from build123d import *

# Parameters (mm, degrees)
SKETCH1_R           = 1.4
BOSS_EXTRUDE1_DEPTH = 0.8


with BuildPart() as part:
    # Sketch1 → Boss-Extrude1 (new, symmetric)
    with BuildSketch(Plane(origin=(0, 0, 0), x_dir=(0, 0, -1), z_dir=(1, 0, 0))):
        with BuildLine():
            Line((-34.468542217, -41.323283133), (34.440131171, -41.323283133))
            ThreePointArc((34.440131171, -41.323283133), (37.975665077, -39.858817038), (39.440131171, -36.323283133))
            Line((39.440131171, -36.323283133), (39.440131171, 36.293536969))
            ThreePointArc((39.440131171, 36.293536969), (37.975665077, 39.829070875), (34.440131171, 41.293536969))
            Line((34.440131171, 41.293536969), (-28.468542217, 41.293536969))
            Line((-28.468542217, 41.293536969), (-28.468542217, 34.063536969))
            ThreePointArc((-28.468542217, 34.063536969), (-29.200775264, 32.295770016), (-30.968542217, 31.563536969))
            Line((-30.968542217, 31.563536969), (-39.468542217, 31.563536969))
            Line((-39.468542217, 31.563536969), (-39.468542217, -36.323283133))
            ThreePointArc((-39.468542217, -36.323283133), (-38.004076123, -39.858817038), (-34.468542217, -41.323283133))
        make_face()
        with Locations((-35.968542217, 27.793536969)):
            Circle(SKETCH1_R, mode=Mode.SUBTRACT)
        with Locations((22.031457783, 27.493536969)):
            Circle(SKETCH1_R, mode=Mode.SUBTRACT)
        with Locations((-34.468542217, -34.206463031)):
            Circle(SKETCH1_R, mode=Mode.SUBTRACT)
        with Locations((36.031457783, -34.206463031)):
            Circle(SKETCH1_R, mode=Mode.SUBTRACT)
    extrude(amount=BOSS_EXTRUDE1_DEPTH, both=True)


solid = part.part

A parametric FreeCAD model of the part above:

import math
import FreeCAD as App
import Part
import Sketcher

doc = App.newDocument("Part")
body = doc.addObject("PartDesign::Body", "Body")

# Sketch on YZ plane
sketch1 = body.newObject("Sketcher::SketchObject", "Sketch")
sketch1.AttachmentSupport = (doc.getObject("YZ_Plane"), [""])
sketch1.MapMode = "FlatFace"
sketch1.addGeometry([
    Part.LineSegment(App.Vector(-41.323283, 34.468542, 0), App.Vector(-41.323283, -34.440131, 0)),  # 0
    Part.ArcOfCircle(Part.Circle(App.Vector(-36.323283, -34.440131, 0), App.Vector(0, 0, 1), 5), math.radians(-180), math.radians(-90)),  # 1
    Part.LineSegment(App.Vector(-36.323283, -39.440131, 0), App.Vector(36.293537, -39.440131, 0)),  # 2
    Part.ArcOfCircle(Part.Circle(App.Vector(36.293537, -34.440131, 0), App.Vector(0, 0, 1), 5), math.radians(-90), math.radians(0)),  # 3
    Part.LineSegment(App.Vector(41.293537, -34.440131, 0), App.Vector(41.293537, 28.468542, 0)),  # 4
    Part.LineSegment(App.Vector(41.293537, 28.468542, 0), App.Vector(34.063537, 28.468542, 0)),  # 5
    Part.ArcOfCircle(Part.Circle(App.Vector(34.063537, 30.968542, 0), App.Vector(0, 0, 1), 2.5), math.radians(180), math.radians(270)),  # 6
    Part.LineSegment(App.Vector(31.563537, 30.968542, 0), App.Vector(31.563537, 39.468542, 0)),  # 7
    Part.LineSegment(App.Vector(31.563537, 39.468542, 0), App.Vector(-36.323283, 39.468542, 0)),  # 8
    Part.ArcOfCircle(Part.Circle(App.Vector(-36.323283, 34.468542, 0), App.Vector(0, 0, 1), 5), math.radians(90), math.radians(180)),  # 9
    Part.Circle(App.Vector(-34.206463, 34.468542, 0), App.Vector(0, 0, 1), 1.4),  # 10
    Part.Circle(App.Vector(-34.206463, -36.031458, 0), App.Vector(0, 0, 1), 1.4),  # 11
    Part.Circle(App.Vector(27.793537, 35.968542, 0), App.Vector(0, 0, 1), 1.4),  # 12
    Part.Circle(App.Vector(27.493537, -22.031458, 0), App.Vector(0, 0, 1), 1.4),  # 13
], False)
sketch1.addConstraint([
    Sketcher.Constraint("Tangent", 0, 2, 1, 1),
    Sketcher.Constraint("Tangent", 1, 2, 2, 1),
    Sketcher.Constraint("Tangent", 2, 2, 3, 1),
    Sketcher.Constraint("Tangent", 3, 2, 4, 1),
    Sketcher.Constraint("Coincident", 4, 2, 5, 1),
    Sketcher.Constraint("Tangent", 5, 2, 6, 2),
    Sketcher.Constraint("Tangent", 6, 1, 7, 1),
    Sketcher.Constraint("Coincident", 7, 2, 8, 1),
    Sketcher.Constraint("Tangent", 8, 2, 9, 1),
    Sketcher.Constraint("Tangent", 9, 2, 0, 1),
    Sketcher.Constraint("Vertical", 0),
    Sketcher.Constraint("Horizontal", 2),
    Sketcher.Constraint("Vertical", 4),
    Sketcher.Constraint("Horizontal", 5),
    Sketcher.Constraint("Vertical", 7),
    Sketcher.Constraint("Horizontal", 8),
    Sketcher.Constraint("Equal", 1, 3),
    Sketcher.Constraint("Equal", 3, 9),
    Sketcher.Constraint("Equal", 10, 11),
    Sketcher.Constraint("Equal", 11, 12),
    Sketcher.Constraint("Equal", 12, 13),
    Sketcher.Constraint("Horizontal", 9, 3, 10, 3),
    Sketcher.Constraint("Vertical", 10, 3, 11, 3),
    Sketcher.Constraint("Radius", 1, 5.0),
    Sketcher.Constraint("Diameter", 10, 2.8),
    Sketcher.Constraint("Radius", 6, 2.5),
    Sketcher.Constraint("DistanceY", 7, 1, 7, 2, 8.5),
    Sketcher.Constraint("DistanceY", 11, 3, 6, 3, 67.0),
    Sketcher.Constraint("DistanceY", 6, 3, 12, 3, 5.0),
    Sketcher.Constraint("DistanceX", 10, 3, 12, 3, 62.0),
    Sketcher.Constraint("DistanceY", 13, 3, 6, 3, 53.0),
    Sketcher.Constraint("DistanceX", 5, 2, 5, 1, 7.23),
    Sketcher.Constraint("DistanceX", 10, 3, 3, 3, 70.5),
    Sketcher.Constraint("DistanceX", 13, 3, 3, 3, 8.8),
    Sketcher.Constraint("DistanceX", 2, 1, 2, 2, 72.61682),
    Sketcher.Constraint("DistanceY", 0, 2, 0, 1, 68.908673),
    Sketcher.Constraint("DistanceY", 1, 3, -1, 1, 34.440131),
    Sketcher.Constraint("DistanceX", 1, 3, -1, 1, 36.323283),
])
pad1 = body.newObject("PartDesign::Pad", "Pad")
pad1.Profile = sketch1
pad1.Length = 1.6
pad1.Midplane = True

doc.recompute()
